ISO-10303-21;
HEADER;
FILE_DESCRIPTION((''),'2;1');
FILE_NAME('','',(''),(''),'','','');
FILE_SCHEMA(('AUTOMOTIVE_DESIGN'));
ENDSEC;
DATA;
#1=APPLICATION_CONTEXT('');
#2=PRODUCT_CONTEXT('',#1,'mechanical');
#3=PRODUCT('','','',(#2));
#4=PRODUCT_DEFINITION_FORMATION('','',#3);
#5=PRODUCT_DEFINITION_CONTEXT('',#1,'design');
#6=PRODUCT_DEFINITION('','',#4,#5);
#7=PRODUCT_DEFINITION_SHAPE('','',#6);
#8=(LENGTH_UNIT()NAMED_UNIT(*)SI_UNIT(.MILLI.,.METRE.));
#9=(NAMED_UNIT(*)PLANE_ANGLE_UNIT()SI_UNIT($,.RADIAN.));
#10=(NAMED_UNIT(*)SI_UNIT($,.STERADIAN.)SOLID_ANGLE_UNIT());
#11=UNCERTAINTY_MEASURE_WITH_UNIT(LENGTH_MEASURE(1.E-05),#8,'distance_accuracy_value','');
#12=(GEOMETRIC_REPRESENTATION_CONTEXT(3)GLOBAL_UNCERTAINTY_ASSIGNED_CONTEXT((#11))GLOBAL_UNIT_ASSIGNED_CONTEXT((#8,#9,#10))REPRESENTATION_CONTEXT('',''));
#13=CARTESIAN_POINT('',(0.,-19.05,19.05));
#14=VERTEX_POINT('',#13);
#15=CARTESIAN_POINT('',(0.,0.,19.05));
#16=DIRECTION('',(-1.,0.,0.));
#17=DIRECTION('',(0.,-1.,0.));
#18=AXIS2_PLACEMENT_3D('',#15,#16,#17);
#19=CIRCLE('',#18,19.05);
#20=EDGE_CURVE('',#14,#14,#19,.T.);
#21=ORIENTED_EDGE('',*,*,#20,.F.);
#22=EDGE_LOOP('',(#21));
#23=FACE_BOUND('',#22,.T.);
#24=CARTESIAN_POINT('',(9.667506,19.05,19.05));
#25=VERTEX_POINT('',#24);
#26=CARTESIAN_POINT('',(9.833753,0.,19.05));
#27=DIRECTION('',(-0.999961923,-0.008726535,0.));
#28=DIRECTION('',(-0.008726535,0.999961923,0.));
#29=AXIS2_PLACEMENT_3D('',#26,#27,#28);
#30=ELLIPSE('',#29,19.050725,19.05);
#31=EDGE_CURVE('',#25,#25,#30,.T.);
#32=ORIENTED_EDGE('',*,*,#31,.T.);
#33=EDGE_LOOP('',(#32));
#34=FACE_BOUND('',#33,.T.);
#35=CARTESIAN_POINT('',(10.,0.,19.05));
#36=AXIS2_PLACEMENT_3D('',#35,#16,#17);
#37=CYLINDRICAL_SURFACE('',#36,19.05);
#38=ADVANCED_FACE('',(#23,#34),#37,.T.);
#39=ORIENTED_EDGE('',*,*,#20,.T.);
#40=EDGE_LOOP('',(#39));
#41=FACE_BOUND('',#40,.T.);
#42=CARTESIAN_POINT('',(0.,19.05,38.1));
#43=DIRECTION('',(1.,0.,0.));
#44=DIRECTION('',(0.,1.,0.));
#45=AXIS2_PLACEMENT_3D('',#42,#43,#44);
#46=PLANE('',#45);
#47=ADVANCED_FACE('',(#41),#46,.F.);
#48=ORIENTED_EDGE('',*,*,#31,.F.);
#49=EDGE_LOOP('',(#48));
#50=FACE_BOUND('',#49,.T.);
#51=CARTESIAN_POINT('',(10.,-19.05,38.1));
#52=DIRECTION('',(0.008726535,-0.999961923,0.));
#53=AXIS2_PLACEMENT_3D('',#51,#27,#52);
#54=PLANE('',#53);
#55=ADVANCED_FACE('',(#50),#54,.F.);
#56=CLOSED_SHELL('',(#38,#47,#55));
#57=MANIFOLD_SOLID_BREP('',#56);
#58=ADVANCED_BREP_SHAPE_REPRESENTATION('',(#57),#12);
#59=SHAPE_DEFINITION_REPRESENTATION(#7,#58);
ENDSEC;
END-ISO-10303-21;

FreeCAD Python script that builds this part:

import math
import FreeCAD as App
import Part
import Sketcher
Q = App.Units.Quantity


def add_polygon(sketch, points):
    """Adds a closed chain of lines whose ends are joined by coincident constraints."""
    first, n = sketch.GeometryCount, len(points)
    for a, b in zip(points, points[1:] + points[:1]):
        sketch.addGeometry(Part.LineSegment(App.Vector(*a, 0), App.Vector(*b, 0)), False)
    for i in range(n):
        sketch.addConstraint(Sketcher.Constraint("Coincident", first + i, 2, first + (i + 1) % n, 1))

doc = App.newDocument("Part")
body = doc.addObject("PartDesign::Body", "Body")

# Sketch on XY plane
sketch1 = body.newObject("Sketcher::SketchObject", "Sketch")
sketch1.AttachmentSupport = (doc.getObject("XY_Plane"), [""])
sketch1.MapMode = "FlatFace"
add_polygon(sketch1, [(0, 19.05), (0, -19.05), (10, -19.05), (9.667506, 19.05)])  # lines 0-3
sketch1.addConstraint([
    Sketcher.Constraint("Vertical", 0),
    Sketcher.Constraint("Horizontal", 1),
    Sketcher.Constraint("Horizontal", 3),
    Sketcher.Constraint("Symmetric", 0, 2, 3, 2, -1, 1),
    Sketcher.Constraint("DistanceY", 0, 2, 0, 1, Q("1.5 in")),
    Sketcher.Constraint("Angle", 2, Q("90.5 deg")),
    Sketcher.Constraint("DistanceX", 1, 1, 1, 2, Q("10 mm")),
])
pad1 = body.newObject("PartDesign::Pad", "Pad")
pad1.Profile = sketch1
pad1.Length = Q("1.5 in")

# Sketch on YZ plane
sketch2 = body.newObject("Sketcher::SketchObject", "Sketch001")
sketch2.AttachmentSupport = (doc.getObject("YZ_Plane"), [""])
sketch2.MapMode = "FlatFace"
sketch2.addGeometry([
    Part.ArcOfCircle(Part.Circle(App.Vector(0, 19.05, 0), App.Vector(0, 0, 1), 19.05), math.radians(180), math.radians(270)),  # 0
    Part.LineSegment(App.Vector(0, 0, 0), App.Vector(-19.05, 0, 0)),  # 1
    Part.LineSegment(App.Vector(-19.05, 0, 0), App.Vector(-19.05, 19.05, 0)),  # 2
    Part.ArcOfCircle(Part.Circle(App.Vector(0, 19.05, 0), App.Vector(0, 0, 1), 19.05), math.radians(90), math.radians(180)),  # 3
    Part.LineSegment(App.Vector(-19.05, 19.05, 0), App.Vector(-19.05, 38.1, 0)),  # 4
    Part.LineSegment(App.Vector(-19.05, 38.1, 0), App.Vector(0, 38.1, 0)),  # 5
    Part.LineSegment(App.Vector(19.05, 38.1, 0), App.Vector(19.05, 19.05, 0)),  # 6
    Part.ArcOfCircle(Part.Circle(App.Vector(0, 19.05, 0), App.Vector(0, 0, 1), 19.05), math.radians(0), math.radians(90)),  # 7
    Part.LineSegment(App.Vector(0, 38.1, 0), App.Vector(19.05, 38.1, 0)),  # 8
    Part.LineSegment(App.Vector(19.05, 19.05, 0), App.Vector(19.05, 0, 0)),  # 9
    Part.LineSegment(App.Vector(19.05, 0, 0), App.Vector(0, 0, 0)),  # 10
    Part.ArcOfCircle(Part.Circle(App.Vector(0, 19.05, 0), App.Vector(0, 0, 1), 19.05), math.radians(-90), math.radians(0)),  # 11
], False)
sketch2.addConstraint([
    Sketcher.Constraint("Tangent", 0, 2, 1, 1),
    Sketcher.Constraint("Coincident", 1, 2, 2, 1),
    Sketcher.Constraint("Tangent", 2, 2, 0, 1),
    Sketcher.Constraint("Tangent", 3, 2, 4, 1),
    Sketcher.Constraint("Coincident", 4, 2, 5, 1),
    Sketcher.Constraint("Tangent", 5, 2, 3, 1),
    Sketcher.Constraint("Tangent", 6, 2, 7, 1),
    Sketcher.Constraint("Tangent", 7, 2, 8, 1),
    Sketcher.Constraint("Coincident", 8, 2, 6, 1),
    Sketcher.Constraint("Coincident", 9, 2, 10, 1),
    Sketcher.Constraint("Tangent", 10, 2, 11, 1),
    Sketcher.Constraint("Tangent", 11, 2, 9, 1),
    Sketcher.Constraint("Horizontal", 1),
    Sketcher.Constraint("Vertical", 2),
    Sketcher.Constraint("Vertical", 4),
    Sketcher.Constraint("Horizontal", 5),
    Sketcher.Constraint("Vertical", 6),
    Sketcher.Constraint("Horizontal", 8),
    Sketcher.Constraint("Vertical", 9),
    Sketcher.Constraint("Horizontal", 10),
    Sketcher.Constraint("Coincident", 0, 2, -1, 1),
    Sketcher.Constraint("Coincident", 10, 2, -1, 1),
    Sketcher.Constraint("Coincident", 3, 3, 0, 3),
    Sketcher.Constraint("Coincident", 7, 3, 0, 3),
    Sketcher.Constraint("Coincident", 11, 2, 6, 2),
    Sketcher.Constraint("Equal", 0, 3),
    Sketcher.Constraint("Radius", 0, Q("0.75 in")),
])
pocket1 = body.newObject("PartDesign::Pocket", "Pocket")
pocket1.Profile = sketch2
pocket1.Length = 10
pocket1.Reversed = True

doc.recompute()
